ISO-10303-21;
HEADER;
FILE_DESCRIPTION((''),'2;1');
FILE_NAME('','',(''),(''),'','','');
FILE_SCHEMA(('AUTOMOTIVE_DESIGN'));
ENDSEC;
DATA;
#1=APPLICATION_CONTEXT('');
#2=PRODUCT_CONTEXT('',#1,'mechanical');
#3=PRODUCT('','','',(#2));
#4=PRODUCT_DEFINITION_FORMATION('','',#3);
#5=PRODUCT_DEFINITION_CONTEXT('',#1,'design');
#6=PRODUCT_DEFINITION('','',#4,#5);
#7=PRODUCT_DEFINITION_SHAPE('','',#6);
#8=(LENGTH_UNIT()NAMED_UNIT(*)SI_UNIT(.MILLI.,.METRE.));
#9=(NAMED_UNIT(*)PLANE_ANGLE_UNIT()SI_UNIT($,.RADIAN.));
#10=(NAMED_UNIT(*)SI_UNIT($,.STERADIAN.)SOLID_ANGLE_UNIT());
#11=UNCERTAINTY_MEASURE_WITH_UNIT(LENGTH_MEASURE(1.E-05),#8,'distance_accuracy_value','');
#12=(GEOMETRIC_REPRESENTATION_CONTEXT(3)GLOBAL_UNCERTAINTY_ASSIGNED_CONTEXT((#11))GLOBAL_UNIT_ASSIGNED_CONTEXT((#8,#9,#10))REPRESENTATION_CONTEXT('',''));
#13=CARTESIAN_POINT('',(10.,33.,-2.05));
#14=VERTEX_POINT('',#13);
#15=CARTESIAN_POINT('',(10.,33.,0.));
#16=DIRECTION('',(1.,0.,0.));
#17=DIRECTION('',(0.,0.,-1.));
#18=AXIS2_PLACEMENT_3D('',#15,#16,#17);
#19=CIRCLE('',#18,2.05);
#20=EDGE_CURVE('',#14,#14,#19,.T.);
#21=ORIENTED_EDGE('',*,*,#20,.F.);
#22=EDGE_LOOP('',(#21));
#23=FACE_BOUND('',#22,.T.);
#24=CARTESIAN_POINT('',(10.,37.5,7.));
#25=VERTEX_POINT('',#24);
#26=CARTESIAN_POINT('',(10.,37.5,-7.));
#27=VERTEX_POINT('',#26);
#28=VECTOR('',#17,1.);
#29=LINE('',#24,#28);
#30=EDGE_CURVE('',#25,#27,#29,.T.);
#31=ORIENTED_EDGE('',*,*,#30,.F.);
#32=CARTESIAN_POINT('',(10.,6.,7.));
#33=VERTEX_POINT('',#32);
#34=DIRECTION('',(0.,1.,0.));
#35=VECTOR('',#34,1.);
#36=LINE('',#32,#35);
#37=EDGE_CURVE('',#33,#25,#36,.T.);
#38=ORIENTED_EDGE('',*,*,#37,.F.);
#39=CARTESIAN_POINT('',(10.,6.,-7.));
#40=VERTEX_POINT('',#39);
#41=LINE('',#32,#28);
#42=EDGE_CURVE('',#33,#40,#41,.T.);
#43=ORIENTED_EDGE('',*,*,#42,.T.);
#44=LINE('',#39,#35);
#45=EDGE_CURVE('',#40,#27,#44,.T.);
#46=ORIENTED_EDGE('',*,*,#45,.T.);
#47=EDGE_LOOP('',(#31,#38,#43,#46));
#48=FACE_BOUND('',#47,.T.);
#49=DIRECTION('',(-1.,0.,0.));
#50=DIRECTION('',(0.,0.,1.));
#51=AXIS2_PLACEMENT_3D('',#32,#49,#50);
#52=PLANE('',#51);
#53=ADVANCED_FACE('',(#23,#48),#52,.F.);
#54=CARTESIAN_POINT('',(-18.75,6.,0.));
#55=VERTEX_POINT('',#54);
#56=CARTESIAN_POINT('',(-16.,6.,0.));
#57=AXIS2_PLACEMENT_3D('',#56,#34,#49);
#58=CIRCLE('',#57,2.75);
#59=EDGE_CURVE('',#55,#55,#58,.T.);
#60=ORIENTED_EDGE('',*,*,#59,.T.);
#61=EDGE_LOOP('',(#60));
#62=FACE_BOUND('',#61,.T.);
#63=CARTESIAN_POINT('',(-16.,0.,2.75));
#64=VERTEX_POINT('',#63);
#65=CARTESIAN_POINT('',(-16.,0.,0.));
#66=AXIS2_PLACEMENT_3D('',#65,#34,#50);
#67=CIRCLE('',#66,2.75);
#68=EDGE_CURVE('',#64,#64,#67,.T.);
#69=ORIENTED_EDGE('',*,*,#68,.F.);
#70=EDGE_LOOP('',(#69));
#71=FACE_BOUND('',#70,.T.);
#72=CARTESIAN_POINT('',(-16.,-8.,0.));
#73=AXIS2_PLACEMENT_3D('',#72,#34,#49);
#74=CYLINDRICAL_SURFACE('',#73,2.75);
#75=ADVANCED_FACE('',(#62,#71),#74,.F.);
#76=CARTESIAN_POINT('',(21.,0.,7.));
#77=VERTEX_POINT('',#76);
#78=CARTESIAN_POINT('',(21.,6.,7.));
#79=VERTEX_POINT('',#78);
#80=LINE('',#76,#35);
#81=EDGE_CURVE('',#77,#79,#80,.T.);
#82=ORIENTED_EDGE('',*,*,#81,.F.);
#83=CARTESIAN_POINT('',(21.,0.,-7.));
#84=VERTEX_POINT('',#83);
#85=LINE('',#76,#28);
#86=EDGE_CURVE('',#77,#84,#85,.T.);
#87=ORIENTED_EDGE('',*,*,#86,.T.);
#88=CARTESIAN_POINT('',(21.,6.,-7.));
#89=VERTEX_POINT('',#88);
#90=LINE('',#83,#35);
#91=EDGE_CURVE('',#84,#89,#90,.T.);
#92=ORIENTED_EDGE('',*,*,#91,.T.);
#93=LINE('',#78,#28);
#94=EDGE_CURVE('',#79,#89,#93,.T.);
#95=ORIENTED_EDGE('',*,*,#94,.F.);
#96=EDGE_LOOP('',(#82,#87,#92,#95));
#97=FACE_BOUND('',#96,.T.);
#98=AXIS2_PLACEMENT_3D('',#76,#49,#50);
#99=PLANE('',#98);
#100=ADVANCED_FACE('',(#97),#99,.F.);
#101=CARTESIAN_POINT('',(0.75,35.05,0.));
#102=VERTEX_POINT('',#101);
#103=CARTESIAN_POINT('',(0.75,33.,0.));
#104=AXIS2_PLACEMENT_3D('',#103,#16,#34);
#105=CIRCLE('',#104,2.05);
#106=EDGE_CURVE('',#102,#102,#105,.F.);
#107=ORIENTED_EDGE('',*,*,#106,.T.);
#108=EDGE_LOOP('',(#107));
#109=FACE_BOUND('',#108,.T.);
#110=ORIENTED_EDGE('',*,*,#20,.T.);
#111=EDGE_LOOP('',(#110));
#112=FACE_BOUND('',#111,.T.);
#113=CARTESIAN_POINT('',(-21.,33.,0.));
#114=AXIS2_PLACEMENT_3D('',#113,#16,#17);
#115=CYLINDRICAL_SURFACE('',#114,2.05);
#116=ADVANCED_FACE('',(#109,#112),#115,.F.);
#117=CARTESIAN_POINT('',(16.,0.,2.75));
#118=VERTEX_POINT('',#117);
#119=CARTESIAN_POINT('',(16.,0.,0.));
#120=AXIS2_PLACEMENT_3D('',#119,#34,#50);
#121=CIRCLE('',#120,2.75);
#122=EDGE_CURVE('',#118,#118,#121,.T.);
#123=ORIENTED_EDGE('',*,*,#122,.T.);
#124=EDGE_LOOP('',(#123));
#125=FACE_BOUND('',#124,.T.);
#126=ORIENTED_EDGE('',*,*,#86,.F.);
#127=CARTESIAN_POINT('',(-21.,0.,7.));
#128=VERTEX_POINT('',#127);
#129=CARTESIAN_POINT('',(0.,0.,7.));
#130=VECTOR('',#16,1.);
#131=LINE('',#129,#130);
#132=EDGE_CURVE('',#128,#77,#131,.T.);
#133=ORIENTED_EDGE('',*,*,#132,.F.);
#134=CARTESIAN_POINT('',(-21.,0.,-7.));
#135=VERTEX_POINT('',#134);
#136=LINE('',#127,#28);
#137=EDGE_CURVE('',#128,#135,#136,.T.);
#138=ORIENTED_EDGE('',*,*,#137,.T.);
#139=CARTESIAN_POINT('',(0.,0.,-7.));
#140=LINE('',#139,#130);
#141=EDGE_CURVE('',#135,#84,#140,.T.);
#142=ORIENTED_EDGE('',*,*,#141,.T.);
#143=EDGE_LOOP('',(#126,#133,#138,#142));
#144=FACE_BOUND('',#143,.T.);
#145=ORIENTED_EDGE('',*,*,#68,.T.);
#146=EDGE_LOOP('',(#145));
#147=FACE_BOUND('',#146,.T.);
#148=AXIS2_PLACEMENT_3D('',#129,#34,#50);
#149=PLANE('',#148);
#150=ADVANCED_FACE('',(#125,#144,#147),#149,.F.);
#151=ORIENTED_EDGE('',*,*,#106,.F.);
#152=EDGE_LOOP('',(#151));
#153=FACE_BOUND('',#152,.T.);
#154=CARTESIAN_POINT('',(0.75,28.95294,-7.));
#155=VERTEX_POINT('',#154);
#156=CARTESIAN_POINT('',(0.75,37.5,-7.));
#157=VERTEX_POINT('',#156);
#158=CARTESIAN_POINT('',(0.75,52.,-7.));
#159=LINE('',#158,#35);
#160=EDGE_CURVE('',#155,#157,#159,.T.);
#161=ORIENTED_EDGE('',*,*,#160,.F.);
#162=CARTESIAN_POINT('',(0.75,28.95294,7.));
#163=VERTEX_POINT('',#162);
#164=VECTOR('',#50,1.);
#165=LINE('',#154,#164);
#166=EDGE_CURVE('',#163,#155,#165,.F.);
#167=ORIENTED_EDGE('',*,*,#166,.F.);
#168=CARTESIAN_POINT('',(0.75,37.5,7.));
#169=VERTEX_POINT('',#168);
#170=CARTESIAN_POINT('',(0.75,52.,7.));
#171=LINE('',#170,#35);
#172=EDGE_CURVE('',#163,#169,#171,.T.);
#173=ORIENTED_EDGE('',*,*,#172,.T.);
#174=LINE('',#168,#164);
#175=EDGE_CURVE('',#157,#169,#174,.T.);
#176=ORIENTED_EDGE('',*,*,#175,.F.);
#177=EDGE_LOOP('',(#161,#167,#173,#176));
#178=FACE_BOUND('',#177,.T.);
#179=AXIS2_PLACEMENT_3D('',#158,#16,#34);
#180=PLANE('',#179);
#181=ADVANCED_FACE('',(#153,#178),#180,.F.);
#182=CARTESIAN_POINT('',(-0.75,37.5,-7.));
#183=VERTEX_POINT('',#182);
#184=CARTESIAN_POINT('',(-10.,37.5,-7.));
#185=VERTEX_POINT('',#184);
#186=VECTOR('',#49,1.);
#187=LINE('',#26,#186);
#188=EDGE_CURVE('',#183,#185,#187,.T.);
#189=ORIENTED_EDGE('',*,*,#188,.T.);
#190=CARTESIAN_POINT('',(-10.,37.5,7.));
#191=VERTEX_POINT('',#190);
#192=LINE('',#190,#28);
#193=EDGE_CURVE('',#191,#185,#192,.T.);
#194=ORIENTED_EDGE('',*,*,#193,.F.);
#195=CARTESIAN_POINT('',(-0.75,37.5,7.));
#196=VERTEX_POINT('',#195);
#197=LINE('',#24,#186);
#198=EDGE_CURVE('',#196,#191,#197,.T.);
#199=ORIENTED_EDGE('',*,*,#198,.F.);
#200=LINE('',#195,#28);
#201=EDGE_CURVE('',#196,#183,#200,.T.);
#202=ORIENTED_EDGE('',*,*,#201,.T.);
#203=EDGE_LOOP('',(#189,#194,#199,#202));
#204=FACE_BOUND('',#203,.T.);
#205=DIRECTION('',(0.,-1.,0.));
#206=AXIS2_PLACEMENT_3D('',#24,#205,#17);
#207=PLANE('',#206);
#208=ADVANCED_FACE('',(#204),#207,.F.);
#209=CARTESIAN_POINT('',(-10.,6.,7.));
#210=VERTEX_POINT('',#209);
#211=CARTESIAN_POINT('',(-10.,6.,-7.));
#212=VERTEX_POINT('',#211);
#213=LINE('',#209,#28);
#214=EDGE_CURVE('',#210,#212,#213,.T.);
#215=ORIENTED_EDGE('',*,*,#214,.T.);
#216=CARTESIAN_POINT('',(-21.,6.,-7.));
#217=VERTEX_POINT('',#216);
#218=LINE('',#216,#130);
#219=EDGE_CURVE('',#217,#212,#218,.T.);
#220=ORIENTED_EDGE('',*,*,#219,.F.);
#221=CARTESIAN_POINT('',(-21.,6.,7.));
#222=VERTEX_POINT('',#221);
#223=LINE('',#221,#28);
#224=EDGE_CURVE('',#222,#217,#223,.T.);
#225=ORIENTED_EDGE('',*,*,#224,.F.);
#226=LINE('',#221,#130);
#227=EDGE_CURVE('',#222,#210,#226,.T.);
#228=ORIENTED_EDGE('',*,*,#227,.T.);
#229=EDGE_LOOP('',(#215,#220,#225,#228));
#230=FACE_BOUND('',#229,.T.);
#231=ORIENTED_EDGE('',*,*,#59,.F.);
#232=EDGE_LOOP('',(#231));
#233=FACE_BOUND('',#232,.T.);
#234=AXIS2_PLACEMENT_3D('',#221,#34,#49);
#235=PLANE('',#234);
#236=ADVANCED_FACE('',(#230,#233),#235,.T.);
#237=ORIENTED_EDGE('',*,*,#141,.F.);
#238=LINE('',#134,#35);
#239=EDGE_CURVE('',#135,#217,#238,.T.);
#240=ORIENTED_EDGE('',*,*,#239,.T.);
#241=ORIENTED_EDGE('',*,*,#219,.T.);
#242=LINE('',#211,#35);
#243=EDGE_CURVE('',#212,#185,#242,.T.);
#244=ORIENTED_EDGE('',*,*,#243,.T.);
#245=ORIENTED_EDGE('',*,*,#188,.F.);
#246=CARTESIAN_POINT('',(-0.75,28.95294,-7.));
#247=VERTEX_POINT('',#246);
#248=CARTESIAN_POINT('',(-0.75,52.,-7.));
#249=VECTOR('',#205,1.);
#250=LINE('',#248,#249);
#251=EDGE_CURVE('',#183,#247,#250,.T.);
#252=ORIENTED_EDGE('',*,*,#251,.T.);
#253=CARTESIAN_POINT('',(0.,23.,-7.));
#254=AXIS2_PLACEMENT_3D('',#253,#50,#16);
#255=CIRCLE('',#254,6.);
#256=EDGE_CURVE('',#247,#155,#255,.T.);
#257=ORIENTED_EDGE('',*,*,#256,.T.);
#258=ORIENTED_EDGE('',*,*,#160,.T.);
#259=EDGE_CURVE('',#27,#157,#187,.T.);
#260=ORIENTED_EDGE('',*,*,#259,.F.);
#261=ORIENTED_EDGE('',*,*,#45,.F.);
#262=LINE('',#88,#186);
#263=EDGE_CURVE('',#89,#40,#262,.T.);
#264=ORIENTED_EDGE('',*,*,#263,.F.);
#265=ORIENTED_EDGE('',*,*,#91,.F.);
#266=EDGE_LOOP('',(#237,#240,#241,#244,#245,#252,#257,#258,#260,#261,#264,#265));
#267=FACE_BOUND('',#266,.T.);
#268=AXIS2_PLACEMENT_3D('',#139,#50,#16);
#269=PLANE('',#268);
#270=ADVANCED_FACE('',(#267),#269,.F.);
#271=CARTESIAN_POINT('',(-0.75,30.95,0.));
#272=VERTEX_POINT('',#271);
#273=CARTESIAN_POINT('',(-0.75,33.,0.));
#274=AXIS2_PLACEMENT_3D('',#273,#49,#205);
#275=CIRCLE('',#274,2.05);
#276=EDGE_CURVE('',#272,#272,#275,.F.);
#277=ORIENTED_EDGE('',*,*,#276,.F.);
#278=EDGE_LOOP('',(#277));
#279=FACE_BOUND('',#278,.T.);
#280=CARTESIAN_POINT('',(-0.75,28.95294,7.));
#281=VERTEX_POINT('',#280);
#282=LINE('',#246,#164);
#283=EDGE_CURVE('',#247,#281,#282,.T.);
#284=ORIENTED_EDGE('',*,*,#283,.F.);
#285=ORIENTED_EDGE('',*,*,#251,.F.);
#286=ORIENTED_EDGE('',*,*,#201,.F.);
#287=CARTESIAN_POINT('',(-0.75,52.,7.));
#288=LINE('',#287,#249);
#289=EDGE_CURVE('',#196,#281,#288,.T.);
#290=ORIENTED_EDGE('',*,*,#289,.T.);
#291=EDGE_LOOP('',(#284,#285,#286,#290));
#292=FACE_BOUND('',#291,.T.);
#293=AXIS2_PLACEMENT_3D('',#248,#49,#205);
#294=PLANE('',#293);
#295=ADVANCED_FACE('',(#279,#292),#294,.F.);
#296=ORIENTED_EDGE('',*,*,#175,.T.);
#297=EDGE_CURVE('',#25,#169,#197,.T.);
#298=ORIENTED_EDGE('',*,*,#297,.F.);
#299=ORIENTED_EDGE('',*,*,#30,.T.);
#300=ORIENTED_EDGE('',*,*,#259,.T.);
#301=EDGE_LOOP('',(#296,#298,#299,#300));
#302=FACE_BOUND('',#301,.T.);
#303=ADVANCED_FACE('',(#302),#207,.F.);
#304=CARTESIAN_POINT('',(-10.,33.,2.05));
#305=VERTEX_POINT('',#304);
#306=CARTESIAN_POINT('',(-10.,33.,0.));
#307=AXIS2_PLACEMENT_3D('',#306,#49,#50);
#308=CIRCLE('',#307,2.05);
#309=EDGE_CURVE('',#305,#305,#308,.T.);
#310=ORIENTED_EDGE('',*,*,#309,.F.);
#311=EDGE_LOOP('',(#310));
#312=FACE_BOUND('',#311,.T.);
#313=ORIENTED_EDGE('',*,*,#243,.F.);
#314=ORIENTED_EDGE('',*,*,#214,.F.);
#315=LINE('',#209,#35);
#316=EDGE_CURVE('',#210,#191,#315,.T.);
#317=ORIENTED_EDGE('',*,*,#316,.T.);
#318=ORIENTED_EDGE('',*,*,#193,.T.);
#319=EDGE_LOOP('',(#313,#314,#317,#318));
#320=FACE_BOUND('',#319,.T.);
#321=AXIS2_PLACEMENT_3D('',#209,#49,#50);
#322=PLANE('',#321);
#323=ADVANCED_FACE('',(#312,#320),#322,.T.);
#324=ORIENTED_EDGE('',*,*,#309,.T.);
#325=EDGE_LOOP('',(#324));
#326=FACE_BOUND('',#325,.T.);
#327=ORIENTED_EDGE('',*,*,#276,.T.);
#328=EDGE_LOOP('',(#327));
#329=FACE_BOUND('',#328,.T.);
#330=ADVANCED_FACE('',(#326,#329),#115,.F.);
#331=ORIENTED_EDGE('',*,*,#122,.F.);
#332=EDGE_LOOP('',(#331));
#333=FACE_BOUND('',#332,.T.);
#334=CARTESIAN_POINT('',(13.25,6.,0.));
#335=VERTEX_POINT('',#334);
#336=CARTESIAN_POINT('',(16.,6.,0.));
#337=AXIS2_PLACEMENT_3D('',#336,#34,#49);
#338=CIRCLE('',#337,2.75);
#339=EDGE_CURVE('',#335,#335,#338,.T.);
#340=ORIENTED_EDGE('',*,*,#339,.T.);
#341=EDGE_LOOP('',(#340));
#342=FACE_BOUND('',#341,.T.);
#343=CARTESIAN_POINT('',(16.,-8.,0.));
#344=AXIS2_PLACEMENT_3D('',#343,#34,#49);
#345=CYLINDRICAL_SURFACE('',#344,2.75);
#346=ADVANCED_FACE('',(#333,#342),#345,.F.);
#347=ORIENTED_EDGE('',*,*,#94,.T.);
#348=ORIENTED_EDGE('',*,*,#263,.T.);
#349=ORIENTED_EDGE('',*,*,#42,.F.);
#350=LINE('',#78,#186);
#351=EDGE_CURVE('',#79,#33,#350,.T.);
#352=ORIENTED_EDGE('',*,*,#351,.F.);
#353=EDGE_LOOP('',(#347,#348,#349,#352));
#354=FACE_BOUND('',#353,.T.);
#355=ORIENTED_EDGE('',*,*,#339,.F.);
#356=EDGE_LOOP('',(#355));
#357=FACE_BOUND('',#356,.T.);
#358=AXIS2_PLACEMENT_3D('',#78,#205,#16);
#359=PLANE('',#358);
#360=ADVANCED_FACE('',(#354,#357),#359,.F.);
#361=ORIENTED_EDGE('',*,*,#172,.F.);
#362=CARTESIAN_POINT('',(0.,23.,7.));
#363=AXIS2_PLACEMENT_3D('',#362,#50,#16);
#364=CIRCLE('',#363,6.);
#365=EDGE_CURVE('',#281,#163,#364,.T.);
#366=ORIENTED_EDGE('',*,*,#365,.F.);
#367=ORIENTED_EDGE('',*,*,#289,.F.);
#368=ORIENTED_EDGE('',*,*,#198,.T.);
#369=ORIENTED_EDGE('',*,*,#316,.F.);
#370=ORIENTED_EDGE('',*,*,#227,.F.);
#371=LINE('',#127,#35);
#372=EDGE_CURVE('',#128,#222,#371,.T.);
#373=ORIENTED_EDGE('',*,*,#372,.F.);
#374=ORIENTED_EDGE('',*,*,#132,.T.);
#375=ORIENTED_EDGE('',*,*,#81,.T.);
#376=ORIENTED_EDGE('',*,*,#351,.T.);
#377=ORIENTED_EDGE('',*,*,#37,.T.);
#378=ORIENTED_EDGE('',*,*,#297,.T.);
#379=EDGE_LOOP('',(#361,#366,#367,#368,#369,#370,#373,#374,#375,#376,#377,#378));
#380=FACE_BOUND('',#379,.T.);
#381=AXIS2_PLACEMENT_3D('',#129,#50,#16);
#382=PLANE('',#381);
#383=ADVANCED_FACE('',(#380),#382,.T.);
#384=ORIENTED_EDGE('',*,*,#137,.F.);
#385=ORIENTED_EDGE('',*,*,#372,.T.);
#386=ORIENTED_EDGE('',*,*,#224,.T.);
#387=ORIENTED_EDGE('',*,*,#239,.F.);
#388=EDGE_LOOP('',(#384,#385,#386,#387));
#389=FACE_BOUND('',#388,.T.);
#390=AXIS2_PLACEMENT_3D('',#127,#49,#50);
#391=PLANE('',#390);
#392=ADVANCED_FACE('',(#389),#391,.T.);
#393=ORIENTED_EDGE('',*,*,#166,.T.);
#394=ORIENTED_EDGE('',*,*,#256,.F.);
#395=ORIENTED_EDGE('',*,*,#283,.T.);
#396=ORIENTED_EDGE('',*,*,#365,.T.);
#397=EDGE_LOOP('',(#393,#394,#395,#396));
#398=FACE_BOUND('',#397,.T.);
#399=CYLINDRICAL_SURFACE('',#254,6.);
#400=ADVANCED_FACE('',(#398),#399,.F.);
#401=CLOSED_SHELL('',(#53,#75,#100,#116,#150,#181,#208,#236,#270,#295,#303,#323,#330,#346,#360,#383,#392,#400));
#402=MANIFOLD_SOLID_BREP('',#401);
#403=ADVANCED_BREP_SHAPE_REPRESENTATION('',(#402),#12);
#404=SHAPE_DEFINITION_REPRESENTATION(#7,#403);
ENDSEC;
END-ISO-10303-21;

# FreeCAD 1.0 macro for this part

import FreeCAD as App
import Part
import Sketcher
from FreeCAD import Vector
Q = App.Units.Quantity

doc = App.newDocument("Part")
body = doc.addObject("PartDesign::Body", "Body")

sketch1 = doc.addObject("Sketcher::SketchObject", "Sketch")
body.addObject(sketch1)
sketch1.AttachmentSupport = (doc.XY_Plane, [""])
sketch1.MapMode = "FlatFace"
sketch1.addGeometry([
    Part.LineSegment(Vector(0, 0, 0), Vector(21, 0, 0)),
    Part.LineSegment(Vector(21, 0, 0), Vector(21, 6, 0)),
    Part.LineSegment(Vector(21, 6, 0), Vector(10, 6, 0)),
    Part.LineSegment(Vector(10, 6, 0), Vector(10, 38, 0)),
    Part.LineSegment(Vector(10, 38, 0), Vector(0, 38, 0)),
    Part.LineSegment(Vector(0, 38, 0), Vector(0, 0, 0)),
], False)
sketch1.addConstraint([
    Sketcher.Constraint("Coincident", 0, 2, 1, 1),
    Sketcher.Constraint("Coincident", 1, 2, 2, 1),
    Sketcher.Constraint("Coincident", 2, 2, 3, 1),
    Sketcher.Constraint("Coincident", 3, 2, 4, 1),
    Sketcher.Constraint("Coincident", 4, 2, 5, 1),
    Sketcher.Constraint("Coincident", 5, 2, 0, 1),
    Sketcher.Constraint("Horizontal", 0),
    Sketcher.Constraint("Vertical", 1),
    Sketcher.Constraint("Horizontal", 2),
    Sketcher.Constraint("Vertical", 3),
    Sketcher.Constraint("Horizontal", 4),
    Sketcher.Constraint("Vertical", 5),
    Sketcher.Constraint("Coincident", 5, 2, -1, 1),
    Sketcher.Constraint("DistanceX", 0, 1, 0, 2, Q("21 mm")),
    Sketcher.Constraint("DistanceX", 2, 2, 2, 1, Q("11 mm")),
    Sketcher.Constraint("DistanceY", 1, 1, 1, 2, Q("6 mm")),
    Sketcher.Constraint("DistanceY", 3, 1, 3, 2, Q("31.5 mm")),
])
pad1 = doc.addObject("PartDesign::Pad", "Pad")
body.addObject(pad1)
pad1.Profile = sketch1
pad1.Length = 14
pad1.Midplane = True
doc.recompute()

mirrored = doc.addObject("PartDesign::Mirrored", "Mirrored")
body.addObject(mirrored)
mirrored.Originals = [pad1]
mirrored.MirrorPlane = (doc.YZ_Plane, [""])
body.Tip = mirrored

sketch2 = doc.addObject("Sketcher::SketchObject", "Sketch001")
body.addObject(sketch2)
sketch2.AttachmentSupport = (doc.XY_Plane, [""])
sketch2.MapMode = "FlatFace"
sketch2.AttachmentOffset = App.Placement(Vector(0, 0, 7), App.Rotation())
sketch2.addGeometry(Part.Circle(Vector(0, 23, 0), Vector(0, 0, 1), 6), False)
sketch2.addConstraint([
    Sketcher.Constraint("PointOnObject", 0, 3, -2),
    Sketcher.Constraint("Diameter", 0, Q("12 mm")),
    Sketcher.Constraint("DistanceY", -1, 1, 0, 3, Q("23 mm")),
])
pocket1 = doc.addObject("PartDesign::Pocket", "Pocket")
body.addObject(pocket1)
pocket1.Profile = sketch2
pocket1.Type = "ThroughAll"

sketch3 = doc.addObject("Sketcher::SketchObject", "Sketch002")
body.addObject(sketch3)
sketch3.AttachmentSupport = (doc.YZ_Plane, [""])
sketch3.MapMode = "FlatFace"
sketch3.AttachmentOffset = App.Placement(Vector(0, 0, 10), App.Rotation())
sketch3.addGeometry(Part.Circle(Vector(33, 0, 0), Vector(0, 0, 1), 2), False)
sketch3.addConstraint([
    Sketcher.Constraint("PointOnObject", 0, 3, -1),
    Sketcher.Constraint("Diameter", 0, Q("4.1 mm")),
    Sketcher.Constraint("DistanceX", -1, 1, 0, 3, Q("33 mm")),
])
pocket2 = doc.addObject("PartDesign::Pocket", "Pocket001")
body.addObject(pocket2)
pocket2.Profile = sketch3
pocket2.Type = "ThroughAll"

sketch4 = doc.addObject("Sketcher::SketchObject", "Sketch003")
body.addObject(sketch4)
sketch4.AttachmentSupport = (doc.XZ_Plane, [""])
sketch4.MapMode = "FlatFace"
sketch4.AttachmentOffset = App.Placement(Vector(0, 0, -6), App.Rotation())
sketch4.addGeometry([
    Part.Circle(Vector(-16, 0, 0), Vector(0, 0, 1), 2.8),
    Part.Circle(Vector(16, 0, 0), Vector(0, 0, 1), 2.8),
], False)
sketch4.addConstraint([
    Sketcher.Constraint("Equal", 0, 1),
    Sketcher.Constraint("Symmetric", 0, 3, 1, 3, -1, 1),
    Sketcher.Constraint("PointOnObject", 0, 3, -1),
    Sketcher.Constraint("Diameter", 0, Q("5.5 mm")),
    Sketcher.Constraint("DistanceX", 0, 3, -1, 1, Q("16 mm")),
])
pocket3 = doc.addObject("PartDesign::Pocket", "Pocket002")
body.addObject(pocket3)
pocket3.Profile = sketch4
pocket3.Length = 14
pocket3.Reversed = True

sketch5 = doc.addObject("Sketcher::SketchObject", "Sketch004")
body.addObject(sketch5)
sketch5.AttachmentSupport = (doc.XY_Plane, [""])
sketch5.MapMode = "FlatFace"
sketch5.AttachmentOffset = App.Placement(Vector(0, 0, 7), App.Rotation())
sketch5.addGeometry([
    Part.LineSegment(Vector(-0.8, 52, 0), Vector(-0.8, 23, 0)),
    Part.LineSegment(Vector(-0.8, 23, 0), Vector(0.8, 23, 0)),
    Part.LineSegment(Vector(0.8, 23, 0), Vector(0.8, 52, 0)),
    Part.LineSegment(Vector(0.8, 52, 0), Vector(-0.8, 52, 0)),
], False)
sketch5.addConstraint([
    Sketcher.Constraint("Coincident", 0, 2, 1, 1),
    Sketcher.Constraint("Coincident", 1, 2, 2, 1),
    Sketcher.Constraint("Coincident", 2, 2, 3, 1),
    Sketcher.Constraint("Coincident", 3, 2, 0, 1),
    Sketcher.Constraint("Vertical", 0),
    Sketcher.Constraint("Horizontal", 1),
    Sketcher.Constraint("Vertical", 2),
    Sketcher.Constraint("Horizontal", 3),
    Sketcher.Constraint("DistanceY", 0, 2, 0, 1, Q("29 mm")),
    Sketcher.Constraint("DistanceX", 1, 1, 1, 2, Q("1.5 mm")),
    Sketcher.Constraint("DistanceY", -1, 1, 0, 2, Q("23 mm")),
    Sketcher.Constraint("DistanceX", 0, 2, -1, 1, Q("0.75 mm")),
])
pocket4 = doc.addObject("PartDesign::Pocket", "Pocket003")
body.addObject(pocket4)
pocket4.Profile = sketch5
pocket4.Type = "ThroughAll"

doc.recompute()
